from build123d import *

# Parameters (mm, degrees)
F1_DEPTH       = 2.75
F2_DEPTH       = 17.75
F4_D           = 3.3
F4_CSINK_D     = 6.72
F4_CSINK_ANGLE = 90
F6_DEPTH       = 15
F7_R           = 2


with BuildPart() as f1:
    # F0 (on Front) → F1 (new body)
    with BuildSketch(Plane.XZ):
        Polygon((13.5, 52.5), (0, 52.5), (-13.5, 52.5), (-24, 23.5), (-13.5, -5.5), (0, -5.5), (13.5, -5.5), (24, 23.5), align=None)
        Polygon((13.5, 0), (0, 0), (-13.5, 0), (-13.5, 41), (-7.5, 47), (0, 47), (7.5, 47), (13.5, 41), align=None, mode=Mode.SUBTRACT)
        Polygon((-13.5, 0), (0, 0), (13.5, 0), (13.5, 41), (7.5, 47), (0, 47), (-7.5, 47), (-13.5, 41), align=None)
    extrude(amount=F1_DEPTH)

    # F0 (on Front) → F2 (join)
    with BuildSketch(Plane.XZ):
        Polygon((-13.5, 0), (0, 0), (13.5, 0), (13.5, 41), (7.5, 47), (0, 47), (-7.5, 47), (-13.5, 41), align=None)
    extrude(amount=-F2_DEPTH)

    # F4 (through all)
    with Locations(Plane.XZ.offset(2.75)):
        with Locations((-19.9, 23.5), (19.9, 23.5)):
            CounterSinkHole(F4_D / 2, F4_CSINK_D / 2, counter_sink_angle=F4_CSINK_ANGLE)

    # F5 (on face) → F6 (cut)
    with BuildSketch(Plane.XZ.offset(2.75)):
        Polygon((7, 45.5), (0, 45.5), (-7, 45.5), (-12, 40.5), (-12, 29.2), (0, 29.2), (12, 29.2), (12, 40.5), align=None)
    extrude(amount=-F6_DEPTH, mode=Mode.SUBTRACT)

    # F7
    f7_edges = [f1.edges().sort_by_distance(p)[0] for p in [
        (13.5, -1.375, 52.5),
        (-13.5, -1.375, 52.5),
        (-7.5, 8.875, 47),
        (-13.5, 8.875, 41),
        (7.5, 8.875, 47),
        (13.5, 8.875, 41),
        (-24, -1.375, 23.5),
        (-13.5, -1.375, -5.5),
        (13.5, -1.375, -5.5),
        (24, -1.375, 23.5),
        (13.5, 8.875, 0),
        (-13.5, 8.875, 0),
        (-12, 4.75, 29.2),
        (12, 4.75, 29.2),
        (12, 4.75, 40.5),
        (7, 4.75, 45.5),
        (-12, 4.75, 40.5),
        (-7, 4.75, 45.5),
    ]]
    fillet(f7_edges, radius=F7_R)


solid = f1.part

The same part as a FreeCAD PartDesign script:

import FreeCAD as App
import Part
import Sketcher
from FreeCAD import Vector
Q = App.Units.Quantity


def edges_at(feature, points):
    """Names of the edges that pass closest to the given points."""
    edges = feature.Shape.Edges
    near = lambda p: min(range(len(edges)), key=lambda i: edges[i].distToShape(Part.Vertex(*p))[0])
    return sorted({f"Edge{near(p) + 1}" for p in points})

doc = App.newDocument("Part")
body = doc.addObject("PartDesign::Body", "Body")

# Sketch on XZ plane
sketch1 = body.newObject("Sketcher::SketchObject", "Sketch")
sketch1.AttachmentSupport = (doc.getObject("XZ_Plane"), [""])
sketch1.MapMode = "FlatFace"
sketch1.addGeometry([
    Part.LineSegment(Vector(14, 52, 0), Vector(-14, 52, 0)),  # 0
    Part.LineSegment(Vector(-14, 52, 0), Vector(-24, 24, 0)),  # 1
    Part.LineSegment(Vector(-24, 24, 0), Vector(-14, -6, 0)),  # 2
    Part.LineSegment(Vector(-14, -6, 0), Vector(14, -6, 0)),  # 3
    Part.LineSegment(Vector(14, -6, 0), Vector(24, 24, 0)),  # 4
    Part.LineSegment(Vector(24, 24, 0), Vector(14, 52, 0)),  # 5
], False)
sketch1.addConstraint([
    Sketcher.Constraint("Coincident", 0, 2, 1, 1),
    Sketcher.Constraint("Coincident", 1, 2, 2, 1),
    Sketcher.Constraint("Coincident", 2, 2, 3, 1),
    Sketcher.Constraint("Coincident", 3, 2, 4, 1),
    Sketcher.Constraint("Coincident", 4, 2, 5, 1),
    Sketcher.Constraint("Coincident", 5, 2, 0, 1),
    Sketcher.Constraint("Horizontal", 0),
    Sketcher.Constraint("Horizontal", 3),
    Sketcher.Constraint("Symmetric", 1, 2, 4, 2, -2),
    Sketcher.Constraint("Parallel", 1, 4),
    Sketcher.Constraint("Parallel", 2, 5),
    Sketcher.Constraint("Vertical", 0, 2, 2, 2),
    Sketcher.Constraint("Vertical", 3, 2, 5, 2),
    Sketcher.Constraint("DistanceX", 0, 2, 0, 1, Q("27 mm")),
    Sketcher.Constraint("DistanceX", 1, 2, -1, 1, Q("24 mm")),
    Sketcher.Constraint("DistanceY", 1, 2, 0, 2, Q("29 mm")),
    Sketcher.Constraint("DistanceY", -1, 1, 0, 2, Q("52.5 mm")),
])
pad1 = body.newObject("PartDesign::Pad", "Pad")
pad1.Profile = sketch1
pad1.Length = 2.75

# Sketch on XZ plane
sketch2 = body.newObject("Sketcher::SketchObject", "Sketch001")
sketch2.AttachmentSupport = (doc.getObject("XZ_Plane"), [""])
sketch2.MapMode = "FlatFace"
sketch2.addGeometry([
    Part.LineSegment(Vector(-14, 0, 0), Vector(14, 0, 0)),  # 0
    Part.LineSegment(Vector(14, 0, 0), Vector(14, 41, 0)),  # 1
    Part.LineSegment(Vector(14, 41, 0), Vector(8, 47, 0)),  # 2
    Part.LineSegment(Vector(8, 47, 0), Vector(-8, 47, 0)),  # 3
    Part.LineSegment(Vector(-8, 47, 0), Vector(-14, 41, 0)),  # 4
    Part.LineSegment(Vector(-14, 41, 0), Vector(-14, 0, 0)),  # 5
], False)
sketch2.addConstraint([
    Sketcher.Constraint("Coincident", 0, 2, 1, 1),
    Sketcher.Constraint("Coincident", 1, 2, 2, 1),
    Sketcher.Constraint("Coincident", 2, 2, 3, 1),
    Sketcher.Constraint("Coincident", 3, 2, 4, 1),
    Sketcher.Constraint("Coincident", 4, 2, 5, 1),
    Sketcher.Constraint("Coincident", 5, 2, 0, 1),
    Sketcher.Constraint("Horizontal", 0),
    Sketcher.Constraint("Vertical", 1),
    Sketcher.Constraint("Horizontal", 3),
    Sketcher.Constraint("Vertical", 5),
    Sketcher.Constraint("Symmetric", 0, 2, 5, 2, -1, 1),
    Sketcher.Constraint("Perpendicular", 2, 4),
    Sketcher.Constraint("Horizontal", 1, 2, 4, 2),
    Sketcher.Constraint("Equal", 2, 4),
    Sketcher.Constraint("DistanceX", 0, 1, 0, 2, Q("27 mm")),
    Sketcher.Constraint("DistanceX", 3, 2, 3, 1, Q("15 mm")),
    Sketcher.Constraint("DistanceY", 1, 1, 1, 2, Q("41 mm")),
])
pad2 = body.newObject("PartDesign::Pad", "Pad001")
pad2.Profile = sketch2
pad2.Length = 17.75
pad2.Reversed = True

# Sketch on XZ plane
sketch3 = body.newObject("Sketcher::SketchObject", "Sketch002")
sketch3.AttachmentSupport = (doc.getObject("XZ_Plane"), [""])
sketch3.MapMode = "FlatFace"
sketch3.AttachmentOffset = App.Placement(Vector(0, 0, 2.75), App.Rotation())
sketch3.addGeometry([
    Part.Circle(Vector(-19.9, 23.5, 0), Vector(0, 0, 1), 1.6),
    Part.Circle(Vector(19.9, 23.5, 0), Vector(0, 0, 1), 1.6),
], False)
sketch3.addConstraint([
    Sketcher.Constraint("Equal", 0, 1),
    Sketcher.Constraint("Symmetric", 0, 3, 1, 3, -2),
    Sketcher.Constraint("Diameter", 0, Q("3.3 mm")),
    Sketcher.Constraint("DistanceX", 0, 3, -1, 1, Q("19.9 mm")),
    Sketcher.Constraint("DistanceY", -1, 1, 0, 3, Q("23.5 mm")),
])
doc.recompute()
hole = body.newObject("PartDesign::Hole", "Hole")
hole.Profile = sketch3
hole.ThreadType = "None"
hole.Diameter = 3.3
hole.DepthType = "ThroughAll"
hole.HoleCutType = "Countersink"
hole.HoleCutDiameter = 6.72
hole.HoleCutCountersinkAngle = 90

# Sketch on XZ plane
sketch4 = body.newObject("Sketcher::SketchObject", "Sketch003")
sketch4.AttachmentSupport = (doc.getObject("XZ_Plane"), [""])
sketch4.MapMode = "FlatFace"
sketch4.AttachmentOffset = App.Placement(Vector(0, 0, 2.75), App.Rotation())
sketch4.addGeometry([
    Part.LineSegment(Vector(7, 46, 0), Vector(-7, 46, 0)),  # 0
    Part.LineSegment(Vector(-7, 46, 0), Vector(-12, 40, 0)),  # 1
    Part.LineSegment(Vector(-12, 40, 0), Vector(-12, 29, 0)),  # 2
    Part.LineSegment(Vector(-12, 29, 0), Vector(12, 29, 0)),  # 3
    Part.LineSegment(Vector(12, 29, 0), Vector(12, 40, 0)),  # 4
    Part.LineSegment(Vector(12, 40, 0), Vector(7, 46, 0)),  # 5
], False)
sketch4.addConstraint([
    Sketcher.Constraint("Coincident", 0, 2, 1, 1),
    Sketcher.Constraint("Coincident", 1, 2, 2, 1),
    Sketcher.Constraint("Coincident", 2, 2, 3, 1),
    Sketcher.Constraint("Coincident", 3, 2, 4, 1),
    Sketcher.Constraint("Coincident", 4, 2, 5, 1),
    Sketcher.Constraint("Coincident", 5, 2, 0, 1),
    Sketcher.Constraint("Horizontal", 0),
    Sketcher.Constraint("Vertical", 2),
    Sketcher.Constraint("Horizontal", 3),
    Sketcher.Constraint("Vertical", 4),
    Sketcher.Constraint("Symmetric", 1, 2, 4, 2, -2),
    Sketcher.Constraint("Perpendicular", 1, 5),
    Sketcher.Constraint("Equal", 1, 5),
    Sketcher.Constraint("DistanceX", 0, 2, 0, 1, Q("14 mm")),
    Sketcher.Constraint("DistanceX", 3, 1, 3, 2, Q("24 mm")),
    Sketcher.Constraint("DistanceY", 2, 2, 2, 1, Q("11.3 mm")),
    Sketcher.Constraint("DistanceY", -1, 1, 0, 2, Q("45.5 mm")),
])
pocket1 = body.newObject("PartDesign::Pocket", "Pocket")
pocket1.Profile = sketch4
pocket1.Length = 15
doc.recompute()

fillet = body.newObject("PartDesign::Fillet", "Fillet")
fillet.Base = (pocket1, edges_at(pocket1, [
    (13.5, -1.375, 52.5),
    (-13.5, -1.375, 52.5),
    (-7.5, 8.875, 47),
    (-13.5, 8.875, 41),
    (7.5, 8.875, 47),
    (13.5, 8.875, 41),
    (-24, -1.375, 23.5),
    (-13.5, -1.375, -5.5),
    (13.5, -1.375, -5.5),
    (24, -1.375, 23.5),
    (13.5, 8.875, 0),
    (-13.5, 8.875, 0),
    (-12, 4.75, 29.2),
    (12, 4.75, 29.2),
    (12, 4.75, 40.5),
    (7, 4.75, 45.5),
    (-12, 4.75, 40.5),
    (-7, 4.75, 45.5),
]))
fillet.Radius = 2

doc.recompute()
